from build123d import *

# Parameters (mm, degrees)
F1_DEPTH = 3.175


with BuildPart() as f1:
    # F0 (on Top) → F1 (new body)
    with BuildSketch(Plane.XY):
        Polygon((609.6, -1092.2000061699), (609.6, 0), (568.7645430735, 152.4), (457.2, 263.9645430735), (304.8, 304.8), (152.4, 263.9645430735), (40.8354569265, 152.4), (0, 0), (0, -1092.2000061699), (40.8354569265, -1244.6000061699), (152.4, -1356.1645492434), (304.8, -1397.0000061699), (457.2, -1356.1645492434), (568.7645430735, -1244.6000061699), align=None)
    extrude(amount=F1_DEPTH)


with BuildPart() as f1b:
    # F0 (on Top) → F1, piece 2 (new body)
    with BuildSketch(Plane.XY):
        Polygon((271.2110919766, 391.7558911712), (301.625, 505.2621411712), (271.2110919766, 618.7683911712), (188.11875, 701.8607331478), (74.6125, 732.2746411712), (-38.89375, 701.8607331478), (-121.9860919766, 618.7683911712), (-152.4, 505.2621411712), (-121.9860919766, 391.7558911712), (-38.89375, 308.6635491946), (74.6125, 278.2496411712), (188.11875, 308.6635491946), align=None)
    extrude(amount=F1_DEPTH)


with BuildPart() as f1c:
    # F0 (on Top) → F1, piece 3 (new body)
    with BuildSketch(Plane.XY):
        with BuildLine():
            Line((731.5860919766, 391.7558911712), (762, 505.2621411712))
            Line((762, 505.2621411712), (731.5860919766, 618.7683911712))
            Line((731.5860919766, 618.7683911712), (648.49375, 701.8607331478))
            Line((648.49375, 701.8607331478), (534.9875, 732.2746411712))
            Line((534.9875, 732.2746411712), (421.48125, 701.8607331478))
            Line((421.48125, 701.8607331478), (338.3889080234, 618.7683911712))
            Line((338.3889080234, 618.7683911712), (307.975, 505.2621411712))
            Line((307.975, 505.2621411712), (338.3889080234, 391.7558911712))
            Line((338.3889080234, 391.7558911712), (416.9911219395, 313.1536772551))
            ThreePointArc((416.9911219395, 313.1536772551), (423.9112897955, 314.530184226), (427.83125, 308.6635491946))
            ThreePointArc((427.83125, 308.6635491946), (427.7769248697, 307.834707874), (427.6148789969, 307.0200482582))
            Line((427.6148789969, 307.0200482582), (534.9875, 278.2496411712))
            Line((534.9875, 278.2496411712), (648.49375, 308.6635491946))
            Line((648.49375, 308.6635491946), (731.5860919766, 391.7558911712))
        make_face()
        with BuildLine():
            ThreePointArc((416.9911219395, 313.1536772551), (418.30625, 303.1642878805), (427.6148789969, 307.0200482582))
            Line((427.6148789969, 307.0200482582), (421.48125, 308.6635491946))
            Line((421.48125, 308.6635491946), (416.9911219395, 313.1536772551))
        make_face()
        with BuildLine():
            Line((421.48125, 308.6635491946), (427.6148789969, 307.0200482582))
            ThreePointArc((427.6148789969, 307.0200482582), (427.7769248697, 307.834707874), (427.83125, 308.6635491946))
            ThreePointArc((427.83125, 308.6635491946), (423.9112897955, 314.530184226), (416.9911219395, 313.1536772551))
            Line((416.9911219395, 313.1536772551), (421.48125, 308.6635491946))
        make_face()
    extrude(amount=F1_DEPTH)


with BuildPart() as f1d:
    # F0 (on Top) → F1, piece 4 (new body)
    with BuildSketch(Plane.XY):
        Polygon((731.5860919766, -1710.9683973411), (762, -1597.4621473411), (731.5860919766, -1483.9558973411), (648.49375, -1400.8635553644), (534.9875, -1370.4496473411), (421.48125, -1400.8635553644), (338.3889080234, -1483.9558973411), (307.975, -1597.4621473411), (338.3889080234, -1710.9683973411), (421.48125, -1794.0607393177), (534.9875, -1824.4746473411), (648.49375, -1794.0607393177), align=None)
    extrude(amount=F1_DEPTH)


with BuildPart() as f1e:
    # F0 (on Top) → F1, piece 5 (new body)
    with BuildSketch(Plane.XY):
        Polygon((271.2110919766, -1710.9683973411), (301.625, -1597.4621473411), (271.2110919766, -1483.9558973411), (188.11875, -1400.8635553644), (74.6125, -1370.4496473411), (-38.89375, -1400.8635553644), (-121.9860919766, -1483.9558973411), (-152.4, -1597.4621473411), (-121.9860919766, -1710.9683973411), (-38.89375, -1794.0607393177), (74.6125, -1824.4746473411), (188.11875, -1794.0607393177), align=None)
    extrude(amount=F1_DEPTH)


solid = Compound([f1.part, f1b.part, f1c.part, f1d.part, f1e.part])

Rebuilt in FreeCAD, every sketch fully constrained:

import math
import FreeCAD as App
import Part
import Sketcher

V = App.Vector
Q = App.Units.Quantity


def add_polygon(sketch, points):
    """Adds a closed chain of lines whose ends are joined by coincident constraints."""
    first, n = sketch.GeometryCount, len(points)
    for a, b in zip(points, points[1:] + points[:1]):
        sketch.addGeometry(Part.LineSegment(App.Vector(*a, 0), App.Vector(*b, 0)), False)
    for i in range(n):
        sketch.addConstraint(Sketcher.Constraint("Coincident", first + i, 2, first + (i + 1) % n, 1))

doc = App.newDocument("Part")
body = doc.addObject("PartDesign::Body", "Body")

# Sketch on XY plane
sketch1 = body.newObject("Sketcher::SketchObject", "Sketch")
sketch1.AttachmentSupport = (doc.getObject("XY_Plane"), [""])
sketch1.MapMode = "FlatFace"
add_polygon(sketch1, [(610, -1092), (610, 0), (569, 152), (457, 264), (305, 305), (152, 264), (41, 152), (0, 0), (0, -1092), (41, -1245), (152, -1356), (305, -1397), (457, -1356), (569, -1245)])  # lines 0-13
sketch1.addConstraint(Sketcher.Constraint("Vertical", 0))
sketch1.addConstraint(Sketcher.Constraint("Vertical", 7))
sketch1.addConstraint(Sketcher.Constraint("Coincident", 6, 2, -1, 1))
sketch1.addConstraint(Sketcher.Constraint("PointOnObject", 0, 2, -1))
sketch1.addConstraint(Sketcher.Constraint("Perpendicular", 1, 4))
sketch1.addConstraint(Sketcher.Constraint("Perpendicular", 2, 5))
sketch1.addConstraint(Sketcher.Constraint("Perpendicular", 3, 6))
sketch1.addConstraint(Sketcher.Constraint("Perpendicular", 4, 8))
sketch1.addConstraint(Sketcher.Constraint("Perpendicular", 5, 9))
sketch1.addConstraint(Sketcher.Constraint("Perpendicular", 6, 10))
sketch1.addConstraint(Sketcher.Constraint("Perpendicular", 8, 11))
sketch1.addConstraint(Sketcher.Constraint("Perpendicular", 9, 12))
sketch1.addConstraint(Sketcher.Constraint("Perpendicular", 10, 13))
sketch1.addConstraint(Sketcher.Constraint("Horizontal", 2, 2, 4, 2))
sketch1.addConstraint(Sketcher.Constraint("Horizontal", 1, 2, 5, 2))
sketch1.addConstraint(Sketcher.Constraint("Horizontal", 9, 2, 11, 2))
sketch1.addConstraint(Sketcher.Constraint("Horizontal", 8, 2, 12, 2))
sketch1.addConstraint(Sketcher.Constraint("Horizontal", 7, 2, 13, 2))
sketch1.addConstraint(Sketcher.Constraint("Vertical", 5, 2, 8, 2))
sketch1.addConstraint(Sketcher.Constraint("Vertical", 4, 2, 9, 2))
sketch1.addConstraint(Sketcher.Constraint("Vertical", 3, 2, 10, 2))
sketch1.addConstraint(Sketcher.Constraint("Vertical", 2, 2, 11, 2))
sketch1.addConstraint(Sketcher.Constraint("Equal", 1, 2))
sketch1.addConstraint(Sketcher.Constraint("Equal", 2, 3))
sketch1.addConstraint(Sketcher.Constraint("DistanceX", -1, 1, 0, 2, Q("24 in")))
sketch1.addConstraint(Sketcher.Constraint("DistanceY", -1, 1, 1, 2, Q("6 in")))
sketch1.addConstraint(Sketcher.Constraint("DistanceY", 0, 1, 0, 2, 1092.200006))
pad1 = body.newObject("PartDesign::Pad", "Pad")
pad1.Profile = sketch1
pad1.Length = Q("0.125 in")
body2 = doc.addObject("PartDesign::Body", "Body001")

# Sketch on XY plane
sketch2 = body2.newObject("Sketcher::SketchObject", "Sketch001")
sketch2.AttachmentSupport = (doc.getObject("XY_Plane001"), [""])
sketch2.MapMode = "FlatFace"
add_polygon(sketch2, [(271, 392), (302, 505), (271, 619), (188, 702), (75, 732), (-39, 702), (-122, 619), (-152, 505), (-122, 392), (-39, 309), (75, 278), (188, 309)])  # lines 0-11
sketch2.addConstraint(Sketcher.Constraint("Perpendicular", 0, 3))
sketch2.addConstraint(Sketcher.Constraint("Perpendicular", 1, 4))
sketch2.addConstraint(Sketcher.Constraint("Perpendicular", 2, 5))
sketch2.addConstraint(Sketcher.Constraint("Perpendicular", 3, 6))
sketch2.addConstraint(Sketcher.Constraint("Perpendicular", 4, 7))
sketch2.addConstraint(Sketcher.Constraint("Perpendicular", 5, 8))
sketch2.addConstraint(Sketcher.Constraint("Perpendicular", 6, 9))
sketch2.addConstraint(Sketcher.Constraint("Perpendicular", 7, 10))
sketch2.addConstraint(Sketcher.Constraint("Perpendicular", 8, 11))
sketch2.addConstraint(Sketcher.Constraint("Horizontal", 2, 2, 4, 2))
sketch2.addConstraint(Sketcher.Constraint("Horizontal", 1, 2, 5, 2))
sketch2.addConstraint(Sketcher.Constraint("Horizontal", 0, 2, 6, 2))
sketch2.addConstraint(Sketcher.Constraint("Horizontal", 8, 2, 10, 2))
sketch2.addConstraint(Sketcher.Constraint("Horizontal", 7, 2, 11, 2))
sketch2.addConstraint(Sketcher.Constraint("Vertical", 5, 2, 7, 2))
sketch2.addConstraint(Sketcher.Constraint("Vertical", 4, 2, 8, 2))
sketch2.addConstraint(Sketcher.Constraint("Vertical", 3, 2, 9, 2))
sketch2.addConstraint(Sketcher.Constraint("Vertical", 2, 2, 10, 2))
sketch2.addConstraint(Sketcher.Constraint("Equal", 1, 2))
sketch2.addConstraint(Sketcher.Constraint("Equal", 2, 3))
sketch2.addConstraint(Sketcher.Constraint("DistanceX", 6, 2, -1, 1, Q("6 in")))
sketch2.addConstraint(Sketcher.Constraint("Angle", 0, Q("75 deg")))
sketch2.addConstraint(Sketcher.Constraint("DistanceX", -1, 1, 0, 2, Q("11.875 in")))
sketch2.addConstraint(Sketcher.Constraint("DistanceY", -1, 1, 0, 2, 505.262141))
pad2 = body2.newObject("PartDesign::Pad", "Pad001")
pad2.Profile = sketch2
pad2.Length = Q("0.125 in")
body3 = doc.addObject("PartDesign::Body", "Body002")

# Sketch on XY plane
sketch3 = body3.newObject("Sketcher::SketchObject", "Sketch002")
sketch3.AttachmentSupport = (doc.getObject("XY_Plane002"), [""])
sketch3.MapMode = "FlatFace"
sketch3.addGeometry(Part.LineSegment(V(732, 392, 0), V(762, 505, 0)), False)
sketch3.addGeometry(Part.LineSegment(V(762, 505, 0), V(732, 619, 0)), False)
sketch3.addGeometry(Part.LineSegment(V(732, 619, 0), V(648, 702, 0)), False)
sketch3.addGeometry(Part.LineSegment(V(648, 702, 0), V(535, 732, 0)), False)
sketch3.addGeometry(Part.LineSegment(V(535, 732, 0), V(421, 702, 0)), False)
sketch3.addGeometry(Part.LineSegment(V(421, 702, 0), V(338, 619, 0)), False)
sketch3.addGeometry(Part.LineSegment(V(338, 619, 0), V(308, 505, 0)), False)
sketch3.addGeometry(Part.LineSegment(V(308, 505, 0), V(338, 392, 0)), False)
sketch3.addGeometry(Part.LineSegment(V(338, 392, 0), V(417, 313, 0)), False)
sketch3.addGeometry(Part.ArcOfCircle(Part.Circle(V(421, 309, 0), V(0, 0, 1), 6), math.radians(135), math.radians(345)), False)
sketch3.addGeometry(Part.LineSegment(V(428, 307, 0), V(535, 278, 0)), False)
sketch3.addGeometry(Part.LineSegment(V(535, 278, 0), V(648, 309, 0)), False)
sketch3.addGeometry(Part.LineSegment(V(648, 309, 0), V(732, 392, 0)), False)
sketch3.addConstraint(Sketcher.Constraint("Coincident", 0, 2, 1, 1))
sketch3.addConstraint(Sketcher.Constraint("Coincident", 1, 2, 2, 1))
sketch3.addConstraint(Sketcher.Constraint("Coincident", 2, 2, 3, 1))
sketch3.addConstraint(Sketcher.Constraint("Coincident", 3, 2, 4, 1))
sketch3.addConstraint(Sketcher.Constraint("Coincident", 4, 2, 5, 1))
sketch3.addConstraint(Sketcher.Constraint("Coincident", 5, 2, 6, 1))
sketch3.addConstraint(Sketcher.Constraint("Coincident", 6, 2, 7, 1))
sketch3.addConstraint(Sketcher.Constraint("Coincident", 7, 2, 8, 1))
sketch3.addConstraint(Sketcher.Constraint("Coincident", 8, 2, 9, 1))
sketch3.addConstraint(Sketcher.Constraint("Coincident", 9, 2, 10, 1))
sketch3.addConstraint(Sketcher.Constraint("Coincident", 10, 2, 11, 1))
sketch3.addConstraint(Sketcher.Constraint("Coincident", 11, 2, 12, 1))
sketch3.addConstraint(Sketcher.Constraint("Coincident", 12, 2, 0, 1))
sketch3.addConstraint(Sketcher.Constraint("Perpendicular", 0, 3))
sketch3.addConstraint(Sketcher.Constraint("Perpendicular", 1, 4))
sketch3.addConstraint(Sketcher.Constraint("Perpendicular", 2, 5))
sketch3.addConstraint(Sketcher.Constraint("Perpendicular", 3, 6))
sketch3.addConstraint(Sketcher.Constraint("Perpendicular", 4, 7))
sketch3.addConstraint(Sketcher.Constraint("Perpendicular", 5, 8))
sketch3.addConstraint(Sketcher.Constraint("Perpendicular", 6, 10))
sketch3.addConstraint(Sketcher.Constraint("Perpendicular", 7, 11))
sketch3.addConstraint(Sketcher.Constraint("Perpendicular", 8, 12))
sketch3.addConstraint(Sketcher.Constraint("Horizontal", 2, 2, 4, 2))
sketch3.addConstraint(Sketcher.Constraint("Horizontal", 1, 2, 5, 2))
sketch3.addConstraint(Sketcher.Constraint("Horizontal", 0, 2, 6, 2))
sketch3.addConstraint(Sketcher.Constraint("Horizontal", 9, 3, 11, 2))
sketch3.addConstraint(Sketcher.Constraint("Horizontal", 7, 2, 12, 2))
sketch3.addConstraint(Sketcher.Constraint("Vertical", 9, 3, 4, 2))
sketch3.addConstraint(Sketcher.Constraint("Vertical", 5, 2, 7, 2))
sketch3.addConstraint(Sketcher.Constraint("Vertical", 3, 2, 10, 2))
sketch3.addConstraint(Sketcher.Constraint("Vertical", 2, 2, 11, 2))
sketch3.addConstraint(Sketcher.Constraint("Vertical", 1, 2, 12, 2))
sketch3.addConstraint(Sketcher.Constraint("Equal", 1, 2))
sketch3.addConstraint(Sketcher.Constraint("Equal", 2, 3))
sketch3.addConstraint(Sketcher.Constraint("Equal", 4, 5))
sketch3.addConstraint(Sketcher.Constraint("Radius", 9, Q("0.25 in")))
sketch3.addConstraint(Sketcher.Constraint("DistanceX", -1, 1, 0, 2, Q("30 in")))
sketch3.addConstraint(Sketcher.Constraint("Angle", 0, Q("75 deg")))
sketch3.addConstraint(Sketcher.Constraint("DistanceX", -1, 1, 9, 3, Q("16.59375 in")))
sketch3.addConstraint(Sketcher.Constraint("DistanceY", -1, 1, 9, 3, 308.663549))
pad3 = body3.newObject("PartDesign::Pad", "Pad002")
pad3.Profile = sketch3
pad3.Length = Q("0.125 in")
body4 = doc.addObject("PartDesign::Body", "Body003")

# Sketch on XY plane
sketch4 = body4.newObject("Sketcher::SketchObject", "Sketch003")
sketch4.AttachmentSupport = (doc.getObject("XY_Plane003"), [""])
sketch4.MapMode = "FlatFace"
add_polygon(sketch4, [(732, -1711), (762, -1597), (732, -1484), (648, -1401), (535, -1370), (421, -1401), (338, -1484), (308, -1597), (338, -1711), (421, -1794), (535, -1824), (648, -1794)])  # lines 0-11
sketch4.addConstraint(Sketcher.Constraint("Perpendicular", 0, 3))
sketch4.addConstraint(Sketcher.Constraint("Perpendicular", 1, 4))
sketch4.addConstraint(Sketcher.Constraint("Perpendicular", 2, 5))
sketch4.addConstraint(Sketcher.Constraint("Perpendicular", 3, 6))
sketch4.addConstraint(Sketcher.Constraint("Perpendicular", 4, 7))
sketch4.addConstraint(Sketcher.Constraint("Perpendicular", 5, 8))
sketch4.addConstraint(Sketcher.Constraint("Perpendicular", 6, 9))
sketch4.addConstraint(Sketcher.Constraint("Perpendicular", 7, 10))
sketch4.addConstraint(Sketcher.Constraint("Perpendicular", 8, 11))
sketch4.addConstraint(Sketcher.Constraint("Horizontal", 2, 2, 4, 2))
sketch4.addConstraint(Sketcher.Constraint("Horizontal", 1, 2, 5, 2))
sketch4.addConstraint(Sketcher.Constraint("Horizontal", 0, 2, 6, 2))
sketch4.addConstraint(Sketcher.Constraint("Horizontal", 8, 2, 10, 2))
sketch4.addConstraint(Sketcher.Constraint("Horizontal", 7, 2, 11, 2))
sketch4.addConstraint(Sketcher.Constraint("Vertical", 5, 2, 7, 2))
sketch4.addConstraint(Sketcher.Constraint("Vertical", 4, 2, 8, 2))
sketch4.addConstraint(Sketcher.Constraint("Vertical", 3, 2, 9, 2))
sketch4.addConstraint(Sketcher.Constraint("Vertical", 2, 2, 10, 2))
sketch4.addConstraint(Sketcher.Constraint("Equal", 1, 2))
sketch4.addConstraint(Sketcher.Constraint("Equal", 2, 3))
sketch4.addConstraint(Sketcher.Constraint("DistanceX", -1, 1, 0, 2, Q("30 in")))
sketch4.addConstraint(Sketcher.Constraint("Angle", 0, Q("75 deg")))
sketch4.addConstraint(Sketcher.Constraint("DistanceX", -1, 1, 2, 2, Q("25.53125 in")))
sketch4.addConstraint(Sketcher.Constraint("DistanceY", 8, 2, -1, 1, 1794.060739))
pad4 = body4.newObject("PartDesign::Pad", "Pad003")
pad4.Profile = sketch4
pad4.Length = Q("0.125 in")
body5 = doc.addObject("PartDesign::Body", "Body004")

# Sketch on XY plane
sketch5 = body5.newObject("Sketcher::SketchObject", "Sketch004")
sketch5.AttachmentSupport = (doc.getObject("XY_Plane004"), [""])
sketch5.MapMode = "FlatFace"
add_polygon(sketch5, [(271, -1711), (302, -1597), (271, -1484), (188, -1401), (75, -1370), (-39, -1401), (-122, -1484), (-152, -1597), (-122, -1711), (-39, -1794), (75, -1824), (188, -1794)])  # lines 0-11
sketch5.addConstraint(Sketcher.Constraint("Perpendicular", 0, 3))
sketch5.addConstraint(Sketcher.Constraint("Perpendicular", 1, 4))
sketch5.addConstraint(Sketcher.Constraint("Perpendicular", 2, 5))
sketch5.addConstraint(Sketcher.Constraint("Perpendicular", 3, 6))
sketch5.addConstraint(Sketcher.Constraint("Perpendicular", 4, 7))
sketch5.addConstraint(Sketcher.Constraint("Perpendicular", 5, 8))
sketch5.addConstraint(Sketcher.Constraint("Perpendicular", 6, 9))
sketch5.addConstraint(Sketcher.Constraint("Perpendicular", 7, 10))
sketch5.addConstraint(Sketcher.Constraint("Perpendicular", 8, 11))
sketch5.addConstraint(Sketcher.Constraint("Horizontal", 2, 2, 4, 2))
sketch5.addConstraint(Sketcher.Constraint("Horizontal", 1, 2, 5, 2))
sketch5.addConstraint(Sketcher.Constraint("Horizontal", 0, 2, 6, 2))
sketch5.addConstraint(Sketcher.Constraint("Horizontal", 8, 2, 10, 2))
sketch5.addConstraint(Sketcher.Constraint("Horizontal", 7, 2, 11, 2))
sketch5.addConstraint(Sketcher.Constraint("Vertical", 5, 2, 7, 2))
sketch5.addConstraint(Sketcher.Constraint("Vertical", 4, 2, 8, 2))
sketch5.addConstraint(Sketcher.Constraint("Vertical", 3, 2, 9, 2))
sketch5.addConstraint(Sketcher.Constraint("Vertical", 2, 2, 10, 2))
sketch5.addConstraint(Sketcher.Constraint("Equal", 1, 2))
sketch5.addConstraint(Sketcher.Constraint("Equal", 2, 3))
sketch5.addConstraint(Sketcher.Constraint("DistanceX", 6, 2, -1, 1, Q("6 in")))
sketch5.addConstraint(Sketcher.Constraint("Angle", 0, Q("75 deg")))
sketch5.addConstraint(Sketcher.Constraint("DistanceX", -1, 1, 0, 2, Q("11.875 in")))
sketch5.addConstraint(Sketcher.Constraint("DistanceY", 8, 2, -1, 1, 1794.060739))
pad5 = body5.newObject("PartDesign::Pad", "Pad004")
pad5.Profile = sketch5
pad5.Length = Q("0.125 in")

doc.recompute()
